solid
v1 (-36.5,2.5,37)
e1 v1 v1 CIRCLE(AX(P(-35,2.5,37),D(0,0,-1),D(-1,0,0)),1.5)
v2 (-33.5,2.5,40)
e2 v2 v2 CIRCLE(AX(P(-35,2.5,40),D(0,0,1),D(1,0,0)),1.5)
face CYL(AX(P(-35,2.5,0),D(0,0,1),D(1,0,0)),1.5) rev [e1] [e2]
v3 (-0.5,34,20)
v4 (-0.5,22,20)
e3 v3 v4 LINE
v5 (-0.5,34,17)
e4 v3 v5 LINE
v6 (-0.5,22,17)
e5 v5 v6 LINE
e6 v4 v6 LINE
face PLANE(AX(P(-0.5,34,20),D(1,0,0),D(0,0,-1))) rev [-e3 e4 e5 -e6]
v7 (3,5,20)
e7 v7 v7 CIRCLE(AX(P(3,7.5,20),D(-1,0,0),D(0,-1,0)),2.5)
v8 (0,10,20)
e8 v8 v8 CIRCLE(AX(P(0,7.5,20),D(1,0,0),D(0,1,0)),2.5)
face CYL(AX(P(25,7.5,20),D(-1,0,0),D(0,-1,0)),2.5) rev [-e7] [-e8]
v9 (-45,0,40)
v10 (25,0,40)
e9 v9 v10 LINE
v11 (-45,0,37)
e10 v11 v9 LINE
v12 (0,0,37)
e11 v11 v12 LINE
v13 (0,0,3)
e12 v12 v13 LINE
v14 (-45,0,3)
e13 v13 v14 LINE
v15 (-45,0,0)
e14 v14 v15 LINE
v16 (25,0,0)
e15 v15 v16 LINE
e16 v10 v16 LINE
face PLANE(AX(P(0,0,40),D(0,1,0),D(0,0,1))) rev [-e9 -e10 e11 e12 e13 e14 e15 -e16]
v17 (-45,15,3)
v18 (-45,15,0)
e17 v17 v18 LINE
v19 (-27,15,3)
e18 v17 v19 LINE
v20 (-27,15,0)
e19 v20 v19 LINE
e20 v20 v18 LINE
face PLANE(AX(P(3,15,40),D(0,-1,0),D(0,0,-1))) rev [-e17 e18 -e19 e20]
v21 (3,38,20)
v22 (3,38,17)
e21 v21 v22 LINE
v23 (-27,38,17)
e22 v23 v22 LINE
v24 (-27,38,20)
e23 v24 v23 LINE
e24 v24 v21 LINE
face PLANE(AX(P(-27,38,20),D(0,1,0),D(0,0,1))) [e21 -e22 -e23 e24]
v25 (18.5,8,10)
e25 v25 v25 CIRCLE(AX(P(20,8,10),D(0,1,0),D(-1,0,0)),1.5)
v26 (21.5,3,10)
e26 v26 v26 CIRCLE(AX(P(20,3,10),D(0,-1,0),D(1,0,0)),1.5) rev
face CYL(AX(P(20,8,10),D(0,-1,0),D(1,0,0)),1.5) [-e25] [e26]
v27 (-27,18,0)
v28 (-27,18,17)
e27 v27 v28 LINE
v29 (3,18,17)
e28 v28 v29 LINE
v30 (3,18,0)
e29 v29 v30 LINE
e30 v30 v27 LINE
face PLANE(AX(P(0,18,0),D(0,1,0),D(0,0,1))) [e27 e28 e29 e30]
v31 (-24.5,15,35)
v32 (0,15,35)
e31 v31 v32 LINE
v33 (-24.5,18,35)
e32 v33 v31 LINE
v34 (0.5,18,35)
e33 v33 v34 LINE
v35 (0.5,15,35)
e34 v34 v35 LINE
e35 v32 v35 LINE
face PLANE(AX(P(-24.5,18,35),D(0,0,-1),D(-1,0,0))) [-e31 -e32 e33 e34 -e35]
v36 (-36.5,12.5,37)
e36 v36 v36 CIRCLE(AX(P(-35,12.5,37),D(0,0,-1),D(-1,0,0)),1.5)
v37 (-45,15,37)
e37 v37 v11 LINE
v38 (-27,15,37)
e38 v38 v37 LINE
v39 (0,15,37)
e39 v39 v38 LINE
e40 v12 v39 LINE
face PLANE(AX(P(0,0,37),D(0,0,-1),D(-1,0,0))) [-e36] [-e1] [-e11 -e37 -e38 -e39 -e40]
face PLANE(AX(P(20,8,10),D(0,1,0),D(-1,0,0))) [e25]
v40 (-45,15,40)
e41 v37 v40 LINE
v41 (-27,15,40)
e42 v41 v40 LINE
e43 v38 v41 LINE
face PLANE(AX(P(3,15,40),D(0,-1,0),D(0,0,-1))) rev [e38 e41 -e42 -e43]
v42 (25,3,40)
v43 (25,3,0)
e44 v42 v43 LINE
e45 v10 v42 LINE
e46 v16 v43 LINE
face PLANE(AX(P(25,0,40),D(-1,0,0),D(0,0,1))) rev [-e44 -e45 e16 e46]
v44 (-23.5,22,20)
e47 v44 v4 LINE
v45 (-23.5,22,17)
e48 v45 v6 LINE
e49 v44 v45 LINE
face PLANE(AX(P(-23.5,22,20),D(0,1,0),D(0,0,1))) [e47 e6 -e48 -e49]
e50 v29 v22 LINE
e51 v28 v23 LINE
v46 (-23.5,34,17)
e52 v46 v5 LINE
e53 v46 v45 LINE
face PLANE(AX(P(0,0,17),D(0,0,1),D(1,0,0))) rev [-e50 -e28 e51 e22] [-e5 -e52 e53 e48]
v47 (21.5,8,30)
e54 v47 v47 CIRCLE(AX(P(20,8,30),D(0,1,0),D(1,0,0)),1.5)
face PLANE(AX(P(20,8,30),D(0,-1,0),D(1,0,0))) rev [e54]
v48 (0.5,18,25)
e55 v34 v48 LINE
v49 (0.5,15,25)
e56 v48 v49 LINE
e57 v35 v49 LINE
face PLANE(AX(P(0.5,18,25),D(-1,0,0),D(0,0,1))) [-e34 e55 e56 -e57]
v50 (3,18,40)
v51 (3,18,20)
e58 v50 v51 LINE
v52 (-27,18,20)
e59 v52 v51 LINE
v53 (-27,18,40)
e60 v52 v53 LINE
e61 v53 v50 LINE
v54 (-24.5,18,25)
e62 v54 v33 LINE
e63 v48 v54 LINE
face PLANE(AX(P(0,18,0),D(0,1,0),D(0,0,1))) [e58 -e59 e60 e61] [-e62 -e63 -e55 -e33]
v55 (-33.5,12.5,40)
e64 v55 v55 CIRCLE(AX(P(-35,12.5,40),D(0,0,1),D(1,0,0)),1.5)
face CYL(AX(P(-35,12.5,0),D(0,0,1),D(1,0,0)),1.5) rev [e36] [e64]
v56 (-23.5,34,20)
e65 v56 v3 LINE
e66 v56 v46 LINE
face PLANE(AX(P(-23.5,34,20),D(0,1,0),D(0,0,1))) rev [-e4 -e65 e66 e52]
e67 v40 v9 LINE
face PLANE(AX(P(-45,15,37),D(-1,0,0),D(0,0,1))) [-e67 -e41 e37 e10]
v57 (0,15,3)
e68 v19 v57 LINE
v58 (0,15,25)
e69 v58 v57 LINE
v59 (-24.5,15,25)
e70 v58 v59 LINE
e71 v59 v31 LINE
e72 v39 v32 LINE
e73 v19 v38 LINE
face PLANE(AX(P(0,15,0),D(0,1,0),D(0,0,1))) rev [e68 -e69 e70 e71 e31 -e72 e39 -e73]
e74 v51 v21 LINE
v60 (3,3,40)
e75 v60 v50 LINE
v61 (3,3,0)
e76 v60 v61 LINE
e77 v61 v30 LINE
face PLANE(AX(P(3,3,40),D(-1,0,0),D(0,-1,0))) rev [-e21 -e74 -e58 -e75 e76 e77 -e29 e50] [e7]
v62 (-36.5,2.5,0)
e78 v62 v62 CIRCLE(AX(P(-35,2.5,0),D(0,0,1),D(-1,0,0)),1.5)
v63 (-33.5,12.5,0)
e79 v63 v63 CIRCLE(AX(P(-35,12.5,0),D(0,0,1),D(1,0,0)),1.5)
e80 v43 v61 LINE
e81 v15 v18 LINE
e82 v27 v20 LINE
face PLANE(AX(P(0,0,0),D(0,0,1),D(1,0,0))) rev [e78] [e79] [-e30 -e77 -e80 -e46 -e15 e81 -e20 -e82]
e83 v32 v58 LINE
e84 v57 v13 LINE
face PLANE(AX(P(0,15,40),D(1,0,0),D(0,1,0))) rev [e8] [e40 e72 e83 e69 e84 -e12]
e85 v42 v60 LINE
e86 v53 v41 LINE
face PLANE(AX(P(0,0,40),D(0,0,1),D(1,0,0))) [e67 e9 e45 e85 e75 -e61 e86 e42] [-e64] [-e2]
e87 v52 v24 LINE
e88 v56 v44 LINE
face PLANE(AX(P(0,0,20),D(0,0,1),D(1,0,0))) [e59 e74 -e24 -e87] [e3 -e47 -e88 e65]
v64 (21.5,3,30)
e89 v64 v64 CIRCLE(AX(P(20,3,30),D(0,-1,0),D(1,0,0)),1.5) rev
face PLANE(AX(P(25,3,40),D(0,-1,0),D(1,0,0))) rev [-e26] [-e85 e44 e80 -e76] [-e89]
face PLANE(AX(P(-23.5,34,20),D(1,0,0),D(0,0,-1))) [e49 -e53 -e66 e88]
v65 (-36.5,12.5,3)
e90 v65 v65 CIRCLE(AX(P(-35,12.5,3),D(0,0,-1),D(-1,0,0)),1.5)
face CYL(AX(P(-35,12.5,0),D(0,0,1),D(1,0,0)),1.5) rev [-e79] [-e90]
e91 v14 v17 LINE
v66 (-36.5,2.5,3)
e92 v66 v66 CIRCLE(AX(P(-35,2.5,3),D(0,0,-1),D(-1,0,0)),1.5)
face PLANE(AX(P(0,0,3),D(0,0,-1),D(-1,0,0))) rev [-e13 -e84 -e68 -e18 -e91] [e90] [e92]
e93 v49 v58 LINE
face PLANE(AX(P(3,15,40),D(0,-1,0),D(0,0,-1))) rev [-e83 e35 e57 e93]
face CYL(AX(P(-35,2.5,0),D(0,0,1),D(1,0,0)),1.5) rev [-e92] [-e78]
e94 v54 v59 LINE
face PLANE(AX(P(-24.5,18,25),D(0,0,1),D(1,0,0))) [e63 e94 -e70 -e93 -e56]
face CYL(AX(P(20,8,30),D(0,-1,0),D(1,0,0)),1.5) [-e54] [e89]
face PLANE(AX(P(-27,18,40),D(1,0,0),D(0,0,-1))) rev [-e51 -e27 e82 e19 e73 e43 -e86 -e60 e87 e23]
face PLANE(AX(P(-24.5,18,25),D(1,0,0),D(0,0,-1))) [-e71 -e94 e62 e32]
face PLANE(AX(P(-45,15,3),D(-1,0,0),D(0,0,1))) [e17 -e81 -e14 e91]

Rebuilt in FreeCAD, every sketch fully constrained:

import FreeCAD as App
import Part
import Sketcher

doc = App.newDocument("Part")
body = doc.addObject("PartDesign::Body", "Body")

# Sketch on XY plane
sketch1 = doc.addObject("Sketcher::SketchObject", "Sketch")
body.addObject(sketch1)
sketch1.AttachmentSupport = (doc.XY_Plane, [""])
sketch1.MapMode = "FlatFace"
sketch1.addGeometry([
    Part.LineSegment(App.Vector(0, 0, 0), App.Vector(25, 0, 0)),  # 0
    Part.LineSegment(App.Vector(25, 0, 0), App.Vector(25, 3, 0)),  # 1
    Part.LineSegment(App.Vector(25, 3, 0), App.Vector(3, 3, 0)),  # 2
    Part.LineSegment(App.Vector(3, 3, 0), App.Vector(3, 15, 0)),  # 3
    Part.LineSegment(App.Vector(3, 15, 0), App.Vector(0, 15, 0)),  # 4
    Part.LineSegment(App.Vector(0, 15, 0), App.Vector(0, 0, 0)),  # 5
], False)
sketch1.addConstraint([
    Sketcher.Constraint("Coincident", 0, 2, 1, 1),
    Sketcher.Constraint("Coincident", 1, 2, 2, 1),
    Sketcher.Constraint("Coincident", 2, 2, 3, 1),
    Sketcher.Constraint("Coincident", 3, 2, 4, 1),
    Sketcher.Constraint("Coincident", 4, 2, 5, 1),
    Sketcher.Constraint("Coincident", 5, 2, 0, 1),
    Sketcher.Constraint("Horizontal", 0),
    Sketcher.Constraint("Vertical", 1),
    Sketcher.Constraint("Horizontal", 2),
    Sketcher.Constraint("Vertical", 3),
    Sketcher.Constraint("Horizontal", 4),
    Sketcher.Constraint("Vertical", 5),
    Sketcher.Constraint("Coincident", 5, 2, -1, 1),
    Sketcher.Constraint("Equal", 4, 1),
    Sketcher.Constraint("DistanceX", 0, 1, 0, 2, 25.0),
    Sketcher.Constraint("DistanceX", 2, 2, 2, 1, 22.0),
    Sketcher.Constraint("DistanceY", 3, 1, 3, 2, 12.0),
])
pad1 = doc.addObject("PartDesign::Pad", "Pad")
body.addObject(pad1)
pad1.Profile = sketch1
pad1.Length = 40

# Sketch on XZ plane
sketch2 = doc.addObject("Sketcher::SketchObject", "Sketch001")
body.addObject(sketch2)
sketch2.AttachmentSupport = (doc.XZ_Plane, [""])
sketch2.MapMode = "FlatFace"
sketch2.AttachmentOffset = App.Placement(App.Vector(0, 0, -3), App.Rotation())
sketch2.addGeometry([
    Part.Circle(App.Vector(20, 10, 0), App.Vector(0, 0, 1), 1.5),
    Part.Circle(App.Vector(20, 30, 0), App.Vector(0, 0, 1), 1.5),
], False)
sketch2.addConstraint([
    Sketcher.Constraint("Equal", 0, 1),
    Sketcher.Constraint("Vertical", 0, 3, 1, 3),
    Sketcher.Constraint("Diameter", 0, 3.0),
    Sketcher.Constraint("DistanceX", -1, 1, 0, 3, 20.0),
    Sketcher.Constraint("DistanceY", -1, 1, 0, 3, 10.0),
    Sketcher.Constraint("DistanceY", -1, 1, 1, 3, 30.0),
])
pad2 = doc.addObject("PartDesign::Pad", "Pad001")
body.addObject(pad2)
pad2.Profile = sketch2
pad2.Length = 5
pad2.Reversed = True

# Sketch on YZ plane
sketch3 = doc.addObject("Sketcher::SketchObject", "Sketch002")
body.addObject(sketch3)
sketch3.AttachmentSupport = (doc.YZ_Plane, [""])
sketch3.MapMode = "FlatFace"
sketch3.addGeometry(Part.Circle(App.Vector(7.5, 20, 0), App.Vector(0, 0, 1), 2.5), False)
sketch3.addConstraint([
    Sketcher.Constraint("Diameter", 0, 5.0),
    Sketcher.Constraint("DistanceY", -1, 1, 0, 3, 20.0),
    Sketcher.Constraint("DistanceX", -1, 1, 0, 3, 7.5),
])
pocket1 = doc.addObject("PartDesign::Pocket", "Pocket")
body.addObject(pocket1)
pocket1.Profile = sketch3
pocket1.Type = "ThroughAll"
pocket1.Midplane = True

# Sketch on XY plane
sketch4 = doc.addObject("Sketcher::SketchObject", "Sketch003")
body.addObject(sketch4)
sketch4.AttachmentSupport = (doc.XY_Plane, [""])
sketch4.MapMode = "FlatFace"
sketch4.addGeometry([
    Part.LineSegment(App.Vector(0, 15, 0), App.Vector(0, 0, 0)),
    Part.LineSegment(App.Vector(0, 0, 0), App.Vector(-45, 0, 0)),
    Part.LineSegment(App.Vector(-45, 0, 0), App.Vector(-45, 15, 0)),
    Part.LineSegment(App.Vector(-45, 15, 0), App.Vector(0, 15, 0)),
], False)
sketch4.addConstraint([
    Sketcher.Constraint("Coincident", 0, 2, 1, 1),
    Sketcher.Constraint("Coincident", 1, 2, 2, 1),
    Sketcher.Constraint("Coincident", 2, 2, 3, 1),
    Sketcher.Constraint("Coincident", 3, 2, 0, 1),
    Sketcher.Constraint("Vertical", 0),
    Sketcher.Constraint("Horizontal", 1),
    Sketcher.Constraint("Vertical", 2),
    Sketcher.Constraint("Horizontal", 3),
    Sketcher.Constraint("Coincident", 0, 2, -1, 1),
    Sketcher.Constraint("DistanceX", 1, 2, 1, 1, 45.0),
    Sketcher.Constraint("DistanceY", 0, 2, 0, 1, 15.0),
])
pad3 = doc.addObject("PartDesign::Pad", "Pad002")
body.addObject(pad3)
pad3.Profile = sketch4
pad3.Length = 3

# Sketch on XY plane
sketch5 = doc.addObject("Sketcher::SketchObject", "Sketch004")
body.addObject(sketch5)
sketch5.AttachmentSupport = (doc.XY_Plane, [""])
sketch5.MapMode = "FlatFace"
sketch5.AttachmentOffset = App.Placement(App.Vector(0, 0, 40), App.Rotation())
sketch5.addGeometry([
    Part.LineSegment(App.Vector(-45, 15, 0), App.Vector(-45, 0, 0)),
    Part.LineSegment(App.Vector(-45, 0, 0), App.Vector(0, 0, 0)),
    Part.LineSegment(App.Vector(0, 0, 0), App.Vector(0, 15, 0)),
    Part.LineSegment(App.Vector(0, 15, 0), App.Vector(-45, 15, 0)),
], False)
sketch5.addConstraint([
    Sketcher.Constraint("Coincident", 0, 2, 1, 1),
    Sketcher.Constraint("Coincident", 1, 2, 2, 1),
    Sketcher.Constraint("Coincident", 2, 2, 3, 1),
    Sketcher.Constraint("Coincident", 3, 2, 0, 1),
    Sketcher.Constraint("Vertical", 0),
    Sketcher.Constraint("Horizontal", 1),
    Sketcher.Constraint("Vertical", 2),
    Sketcher.Constraint("Horizontal", 3),
    Sketcher.Constraint("Coincident", 1, 2, -1, 1),
    Sketcher.Constraint("DistanceX", 1, 1, 1, 2, 45.0),
    Sketcher.Constraint("DistanceY", 0, 2, 0, 1, 15.0),
])
pad4 = doc.addObject("PartDesign::Pad", "Pad003")
body.addObject(pad4)
pad4.Profile = sketch5
pad4.Length = 3
pad4.Reversed = True

# Sketch on XY plane
sketch6 = doc.addObject("Sketcher::SketchObject", "Sketch005")
body.addObject(sketch6)
sketch6.AttachmentSupport = (doc.XY_Plane, [""])
sketch6.MapMode = "FlatFace"
sketch6.AttachmentOffset = App.Placement(App.Vector(0, 0, 40), App.Rotation())
sketch6.addGeometry([
    Part.Circle(App.Vector(-35, 12.5, 0), App.Vector(0, 0, 1), 1.5),
    Part.Circle(App.Vector(-35, 2.5, 0), App.Vector(0, 0, 1), 1.5),
], False)
sketch6.addConstraint([
    Sketcher.Constraint("Equal", 0, 1),
    Sketcher.Constraint("Vertical", 0, 3, 1, 3),
    Sketcher.Constraint("Diameter", 0, 3.0),
    Sketcher.Constraint("DistanceX", 0, 3, -1, 1, 35.0),
    Sketcher.Constraint("DistanceY", 1, 3, 0, 3, 10.0),
    Sketcher.Constraint("DistanceY", -1, 1, 0, 3, 12.5),
])
pocket2 = doc.addObject("PartDesign::Pocket", "Pocket001")
body.addObject(pocket2)
pocket2.Profile = sketch6
pocket2.Type = "ThroughAll"
pocket2.Midplane = True

# Sketch on XZ plane
sketch7 = doc.addObject("Sketcher::SketchObject", "Sketch006")
body.addObject(sketch7)
sketch7.AttachmentSupport = (doc.XZ_Plane, [""])
sketch7.MapMode = "FlatFace"
sketch7.AttachmentOffset = App.Placement(App.Vector(0, 0, -15), App.Rotation())
sketch7.addGeometry([
    Part.LineSegment(App.Vector(-27, 0, 0), App.Vector(-27, 40, 0)),  # 0
    Part.LineSegment(App.Vector(-27, 40, 0), App.Vector(3, 40, 0)),  # 1
    Part.LineSegment(App.Vector(3, 40, 0), App.Vector(3, 0, 0)),  # 2
    Part.LineSegment(App.Vector(3, 0, 0), App.Vector(-27, 0, 0)),  # 3
    Part.LineSegment(App.Vector(0.5, 35, 0), App.Vector(-24.5, 35, 0)),  # 4
    Part.LineSegment(App.Vector(-24.5, 35, 0), App.Vector(-24.5, 25, 0)),  # 5
    Part.LineSegment(App.Vector(-24.5, 25, 0), App.Vector(0.5, 25, 0)),  # 6
    Part.LineSegment(App.Vector(0.5, 25, 0), App.Vector(0.5, 35, 0)),  # 7
], False)
sketch7.addConstraint([
    Sketcher.Constraint("Coincident", 0, 2, 1, 1),
    Sketcher.Constraint("Coincident", 1, 2, 2, 1),
    Sketcher.Constraint("Coincident", 2, 2, 3, 1),
    Sketcher.Constraint("Coincident", 3, 2, 0, 1),
    Sketcher.Constraint("Coincident", 4, 2, 5, 1),
    Sketcher.Constraint("Coincident", 5, 2, 6, 1),
    Sketcher.Constraint("Coincident", 6, 2, 7, 1),
    Sketcher.Constraint("Coincident", 7, 2, 4, 1),
    Sketcher.Constraint("Vertical", 0),
    Sketcher.Constraint("Horizontal", 1),
    Sketcher.Constraint("Vertical", 2),
    Sketcher.Constraint("Horizontal", 3),
    Sketcher.Constraint("Horizontal", 4),
    Sketcher.Constraint("Vertical", 5),
    Sketcher.Constraint("Horizontal", 6),
    Sketcher.Constraint("Vertical", 7),
    Sketcher.Constraint("PointOnObject", 2, 2, -1),
    Sketcher.Constraint("DistanceX", 1, 1, 1, 2, 30.0),
    Sketcher.Constraint("DistanceX", 4, 2, 4, 1, 25.0),
    Sketcher.Constraint("DistanceY", 0, 1, 0, 2, 40.0),
    Sketcher.Constraint("DistanceY", 5, 2, 5, 1, 10.0),
    Sketcher.Constraint("DistanceX", 0, 2, -1, 1, 27.0),
    Sketcher.Constraint("DistanceY", -1, 1, 4, 2, 35.0),
    Sketcher.Constraint("DistanceX", 4, 2, -1, 1, 24.5),
])
pad5 = doc.addObject("PartDesign::Pad", "Pad004")
body.addObject(pad5)
pad5.Profile = sketch7
pad5.Length = 3
pad5.Reversed = True

# Sketch on XY plane
sketch8 = doc.addObject("Sketcher::SketchObject", "Sketch007")
body.addObject(sketch8)
sketch8.AttachmentSupport = (doc.XY_Plane, [""])
sketch8.MapMode = "FlatFace"
sketch8.AttachmentOffset = App.Placement(App.Vector(0, 0, 20), App.Rotation())
sketch8.addGeometry([
    Part.LineSegment(App.Vector(3, 18, 0), App.Vector(-27, 18, 0)),  # 0
    Part.LineSegment(App.Vector(-27, 18, 0), App.Vector(-27, 38, 0)),  # 1
    Part.LineSegment(App.Vector(-27, 38, 0), App.Vector(3, 38, 0)),  # 2
    Part.LineSegment(App.Vector(3, 38, 0), App.Vector(3, 18, 0)),  # 3
    Part.LineSegment(App.Vector(-23.5, 34, 0), App.Vector(-23.5, 22, 0)),  # 4
    Part.LineSegment(App.Vector(-23.5, 22, 0), App.Vector(-0.5, 22, 0)),  # 5
    Part.LineSegment(App.Vector(-0.5, 22, 0), App.Vector(-0.5, 34, 0)),  # 6
    Part.LineSegment(App.Vector(-0.5, 34, 0), App.Vector(-23.5, 34, 0)),  # 7
], False)
sketch8.addConstraint([
    Sketcher.Constraint("Coincident", 0, 2, 1, 1),
    Sketcher.Constraint("Coincident", 1, 2, 2, 1),
    Sketcher.Constraint("Coincident", 2, 2, 3, 1),
    Sketcher.Constraint("Coincident", 3, 2, 0, 1),
    Sketcher.Constraint("Coincident", 4, 2, 5, 1),
    Sketcher.Constraint("Coincident", 5, 2, 6, 1),
    Sketcher.Constraint("Coincident", 6, 2, 7, 1),
    Sketcher.Constraint("Coincident", 7, 2, 4, 1),
    Sketcher.Constraint("Horizontal", 0),
    Sketcher.Constraint("Vertical", 1),
    Sketcher.Constraint("Horizontal", 2),
    Sketcher.Constraint("Vertical", 3),
    Sketcher.Constraint("Vertical", 4),
    Sketcher.Constraint("Horizontal", 5),
    Sketcher.Constraint("Vertical", 6),
    Sketcher.Constraint("Horizontal", 7),
    Sketcher.Constraint("DistanceX", 0, 2, 0, 1, 30.0),
    Sketcher.Constraint("DistanceX", 5, 1, 5, 2, 23.0),
    Sketcher.Constraint("DistanceY", 1, 1, 1, 2, 20.0),
    Sketcher.Constraint("DistanceY", 4, 2, 4, 1, 12.0),
    Sketcher.Constraint("DistanceX", 0, 2, -1, 1, 27.0),
    Sketcher.Constraint("DistanceY", -1, 1, 0, 2, 18.0),
    Sketcher.Constraint("DistanceY", -1, 1, 4, 2, 22.0),
    Sketcher.Constraint("DistanceX", 4, 2, -1, 1, 23.5),
])
pad6 = doc.addObject("PartDesign::Pad", "Pad005")
body.addObject(pad6)
pad6.Profile = sketch8
pad6.Length = 3
pad6.Reversed = True

doc.recompute()
